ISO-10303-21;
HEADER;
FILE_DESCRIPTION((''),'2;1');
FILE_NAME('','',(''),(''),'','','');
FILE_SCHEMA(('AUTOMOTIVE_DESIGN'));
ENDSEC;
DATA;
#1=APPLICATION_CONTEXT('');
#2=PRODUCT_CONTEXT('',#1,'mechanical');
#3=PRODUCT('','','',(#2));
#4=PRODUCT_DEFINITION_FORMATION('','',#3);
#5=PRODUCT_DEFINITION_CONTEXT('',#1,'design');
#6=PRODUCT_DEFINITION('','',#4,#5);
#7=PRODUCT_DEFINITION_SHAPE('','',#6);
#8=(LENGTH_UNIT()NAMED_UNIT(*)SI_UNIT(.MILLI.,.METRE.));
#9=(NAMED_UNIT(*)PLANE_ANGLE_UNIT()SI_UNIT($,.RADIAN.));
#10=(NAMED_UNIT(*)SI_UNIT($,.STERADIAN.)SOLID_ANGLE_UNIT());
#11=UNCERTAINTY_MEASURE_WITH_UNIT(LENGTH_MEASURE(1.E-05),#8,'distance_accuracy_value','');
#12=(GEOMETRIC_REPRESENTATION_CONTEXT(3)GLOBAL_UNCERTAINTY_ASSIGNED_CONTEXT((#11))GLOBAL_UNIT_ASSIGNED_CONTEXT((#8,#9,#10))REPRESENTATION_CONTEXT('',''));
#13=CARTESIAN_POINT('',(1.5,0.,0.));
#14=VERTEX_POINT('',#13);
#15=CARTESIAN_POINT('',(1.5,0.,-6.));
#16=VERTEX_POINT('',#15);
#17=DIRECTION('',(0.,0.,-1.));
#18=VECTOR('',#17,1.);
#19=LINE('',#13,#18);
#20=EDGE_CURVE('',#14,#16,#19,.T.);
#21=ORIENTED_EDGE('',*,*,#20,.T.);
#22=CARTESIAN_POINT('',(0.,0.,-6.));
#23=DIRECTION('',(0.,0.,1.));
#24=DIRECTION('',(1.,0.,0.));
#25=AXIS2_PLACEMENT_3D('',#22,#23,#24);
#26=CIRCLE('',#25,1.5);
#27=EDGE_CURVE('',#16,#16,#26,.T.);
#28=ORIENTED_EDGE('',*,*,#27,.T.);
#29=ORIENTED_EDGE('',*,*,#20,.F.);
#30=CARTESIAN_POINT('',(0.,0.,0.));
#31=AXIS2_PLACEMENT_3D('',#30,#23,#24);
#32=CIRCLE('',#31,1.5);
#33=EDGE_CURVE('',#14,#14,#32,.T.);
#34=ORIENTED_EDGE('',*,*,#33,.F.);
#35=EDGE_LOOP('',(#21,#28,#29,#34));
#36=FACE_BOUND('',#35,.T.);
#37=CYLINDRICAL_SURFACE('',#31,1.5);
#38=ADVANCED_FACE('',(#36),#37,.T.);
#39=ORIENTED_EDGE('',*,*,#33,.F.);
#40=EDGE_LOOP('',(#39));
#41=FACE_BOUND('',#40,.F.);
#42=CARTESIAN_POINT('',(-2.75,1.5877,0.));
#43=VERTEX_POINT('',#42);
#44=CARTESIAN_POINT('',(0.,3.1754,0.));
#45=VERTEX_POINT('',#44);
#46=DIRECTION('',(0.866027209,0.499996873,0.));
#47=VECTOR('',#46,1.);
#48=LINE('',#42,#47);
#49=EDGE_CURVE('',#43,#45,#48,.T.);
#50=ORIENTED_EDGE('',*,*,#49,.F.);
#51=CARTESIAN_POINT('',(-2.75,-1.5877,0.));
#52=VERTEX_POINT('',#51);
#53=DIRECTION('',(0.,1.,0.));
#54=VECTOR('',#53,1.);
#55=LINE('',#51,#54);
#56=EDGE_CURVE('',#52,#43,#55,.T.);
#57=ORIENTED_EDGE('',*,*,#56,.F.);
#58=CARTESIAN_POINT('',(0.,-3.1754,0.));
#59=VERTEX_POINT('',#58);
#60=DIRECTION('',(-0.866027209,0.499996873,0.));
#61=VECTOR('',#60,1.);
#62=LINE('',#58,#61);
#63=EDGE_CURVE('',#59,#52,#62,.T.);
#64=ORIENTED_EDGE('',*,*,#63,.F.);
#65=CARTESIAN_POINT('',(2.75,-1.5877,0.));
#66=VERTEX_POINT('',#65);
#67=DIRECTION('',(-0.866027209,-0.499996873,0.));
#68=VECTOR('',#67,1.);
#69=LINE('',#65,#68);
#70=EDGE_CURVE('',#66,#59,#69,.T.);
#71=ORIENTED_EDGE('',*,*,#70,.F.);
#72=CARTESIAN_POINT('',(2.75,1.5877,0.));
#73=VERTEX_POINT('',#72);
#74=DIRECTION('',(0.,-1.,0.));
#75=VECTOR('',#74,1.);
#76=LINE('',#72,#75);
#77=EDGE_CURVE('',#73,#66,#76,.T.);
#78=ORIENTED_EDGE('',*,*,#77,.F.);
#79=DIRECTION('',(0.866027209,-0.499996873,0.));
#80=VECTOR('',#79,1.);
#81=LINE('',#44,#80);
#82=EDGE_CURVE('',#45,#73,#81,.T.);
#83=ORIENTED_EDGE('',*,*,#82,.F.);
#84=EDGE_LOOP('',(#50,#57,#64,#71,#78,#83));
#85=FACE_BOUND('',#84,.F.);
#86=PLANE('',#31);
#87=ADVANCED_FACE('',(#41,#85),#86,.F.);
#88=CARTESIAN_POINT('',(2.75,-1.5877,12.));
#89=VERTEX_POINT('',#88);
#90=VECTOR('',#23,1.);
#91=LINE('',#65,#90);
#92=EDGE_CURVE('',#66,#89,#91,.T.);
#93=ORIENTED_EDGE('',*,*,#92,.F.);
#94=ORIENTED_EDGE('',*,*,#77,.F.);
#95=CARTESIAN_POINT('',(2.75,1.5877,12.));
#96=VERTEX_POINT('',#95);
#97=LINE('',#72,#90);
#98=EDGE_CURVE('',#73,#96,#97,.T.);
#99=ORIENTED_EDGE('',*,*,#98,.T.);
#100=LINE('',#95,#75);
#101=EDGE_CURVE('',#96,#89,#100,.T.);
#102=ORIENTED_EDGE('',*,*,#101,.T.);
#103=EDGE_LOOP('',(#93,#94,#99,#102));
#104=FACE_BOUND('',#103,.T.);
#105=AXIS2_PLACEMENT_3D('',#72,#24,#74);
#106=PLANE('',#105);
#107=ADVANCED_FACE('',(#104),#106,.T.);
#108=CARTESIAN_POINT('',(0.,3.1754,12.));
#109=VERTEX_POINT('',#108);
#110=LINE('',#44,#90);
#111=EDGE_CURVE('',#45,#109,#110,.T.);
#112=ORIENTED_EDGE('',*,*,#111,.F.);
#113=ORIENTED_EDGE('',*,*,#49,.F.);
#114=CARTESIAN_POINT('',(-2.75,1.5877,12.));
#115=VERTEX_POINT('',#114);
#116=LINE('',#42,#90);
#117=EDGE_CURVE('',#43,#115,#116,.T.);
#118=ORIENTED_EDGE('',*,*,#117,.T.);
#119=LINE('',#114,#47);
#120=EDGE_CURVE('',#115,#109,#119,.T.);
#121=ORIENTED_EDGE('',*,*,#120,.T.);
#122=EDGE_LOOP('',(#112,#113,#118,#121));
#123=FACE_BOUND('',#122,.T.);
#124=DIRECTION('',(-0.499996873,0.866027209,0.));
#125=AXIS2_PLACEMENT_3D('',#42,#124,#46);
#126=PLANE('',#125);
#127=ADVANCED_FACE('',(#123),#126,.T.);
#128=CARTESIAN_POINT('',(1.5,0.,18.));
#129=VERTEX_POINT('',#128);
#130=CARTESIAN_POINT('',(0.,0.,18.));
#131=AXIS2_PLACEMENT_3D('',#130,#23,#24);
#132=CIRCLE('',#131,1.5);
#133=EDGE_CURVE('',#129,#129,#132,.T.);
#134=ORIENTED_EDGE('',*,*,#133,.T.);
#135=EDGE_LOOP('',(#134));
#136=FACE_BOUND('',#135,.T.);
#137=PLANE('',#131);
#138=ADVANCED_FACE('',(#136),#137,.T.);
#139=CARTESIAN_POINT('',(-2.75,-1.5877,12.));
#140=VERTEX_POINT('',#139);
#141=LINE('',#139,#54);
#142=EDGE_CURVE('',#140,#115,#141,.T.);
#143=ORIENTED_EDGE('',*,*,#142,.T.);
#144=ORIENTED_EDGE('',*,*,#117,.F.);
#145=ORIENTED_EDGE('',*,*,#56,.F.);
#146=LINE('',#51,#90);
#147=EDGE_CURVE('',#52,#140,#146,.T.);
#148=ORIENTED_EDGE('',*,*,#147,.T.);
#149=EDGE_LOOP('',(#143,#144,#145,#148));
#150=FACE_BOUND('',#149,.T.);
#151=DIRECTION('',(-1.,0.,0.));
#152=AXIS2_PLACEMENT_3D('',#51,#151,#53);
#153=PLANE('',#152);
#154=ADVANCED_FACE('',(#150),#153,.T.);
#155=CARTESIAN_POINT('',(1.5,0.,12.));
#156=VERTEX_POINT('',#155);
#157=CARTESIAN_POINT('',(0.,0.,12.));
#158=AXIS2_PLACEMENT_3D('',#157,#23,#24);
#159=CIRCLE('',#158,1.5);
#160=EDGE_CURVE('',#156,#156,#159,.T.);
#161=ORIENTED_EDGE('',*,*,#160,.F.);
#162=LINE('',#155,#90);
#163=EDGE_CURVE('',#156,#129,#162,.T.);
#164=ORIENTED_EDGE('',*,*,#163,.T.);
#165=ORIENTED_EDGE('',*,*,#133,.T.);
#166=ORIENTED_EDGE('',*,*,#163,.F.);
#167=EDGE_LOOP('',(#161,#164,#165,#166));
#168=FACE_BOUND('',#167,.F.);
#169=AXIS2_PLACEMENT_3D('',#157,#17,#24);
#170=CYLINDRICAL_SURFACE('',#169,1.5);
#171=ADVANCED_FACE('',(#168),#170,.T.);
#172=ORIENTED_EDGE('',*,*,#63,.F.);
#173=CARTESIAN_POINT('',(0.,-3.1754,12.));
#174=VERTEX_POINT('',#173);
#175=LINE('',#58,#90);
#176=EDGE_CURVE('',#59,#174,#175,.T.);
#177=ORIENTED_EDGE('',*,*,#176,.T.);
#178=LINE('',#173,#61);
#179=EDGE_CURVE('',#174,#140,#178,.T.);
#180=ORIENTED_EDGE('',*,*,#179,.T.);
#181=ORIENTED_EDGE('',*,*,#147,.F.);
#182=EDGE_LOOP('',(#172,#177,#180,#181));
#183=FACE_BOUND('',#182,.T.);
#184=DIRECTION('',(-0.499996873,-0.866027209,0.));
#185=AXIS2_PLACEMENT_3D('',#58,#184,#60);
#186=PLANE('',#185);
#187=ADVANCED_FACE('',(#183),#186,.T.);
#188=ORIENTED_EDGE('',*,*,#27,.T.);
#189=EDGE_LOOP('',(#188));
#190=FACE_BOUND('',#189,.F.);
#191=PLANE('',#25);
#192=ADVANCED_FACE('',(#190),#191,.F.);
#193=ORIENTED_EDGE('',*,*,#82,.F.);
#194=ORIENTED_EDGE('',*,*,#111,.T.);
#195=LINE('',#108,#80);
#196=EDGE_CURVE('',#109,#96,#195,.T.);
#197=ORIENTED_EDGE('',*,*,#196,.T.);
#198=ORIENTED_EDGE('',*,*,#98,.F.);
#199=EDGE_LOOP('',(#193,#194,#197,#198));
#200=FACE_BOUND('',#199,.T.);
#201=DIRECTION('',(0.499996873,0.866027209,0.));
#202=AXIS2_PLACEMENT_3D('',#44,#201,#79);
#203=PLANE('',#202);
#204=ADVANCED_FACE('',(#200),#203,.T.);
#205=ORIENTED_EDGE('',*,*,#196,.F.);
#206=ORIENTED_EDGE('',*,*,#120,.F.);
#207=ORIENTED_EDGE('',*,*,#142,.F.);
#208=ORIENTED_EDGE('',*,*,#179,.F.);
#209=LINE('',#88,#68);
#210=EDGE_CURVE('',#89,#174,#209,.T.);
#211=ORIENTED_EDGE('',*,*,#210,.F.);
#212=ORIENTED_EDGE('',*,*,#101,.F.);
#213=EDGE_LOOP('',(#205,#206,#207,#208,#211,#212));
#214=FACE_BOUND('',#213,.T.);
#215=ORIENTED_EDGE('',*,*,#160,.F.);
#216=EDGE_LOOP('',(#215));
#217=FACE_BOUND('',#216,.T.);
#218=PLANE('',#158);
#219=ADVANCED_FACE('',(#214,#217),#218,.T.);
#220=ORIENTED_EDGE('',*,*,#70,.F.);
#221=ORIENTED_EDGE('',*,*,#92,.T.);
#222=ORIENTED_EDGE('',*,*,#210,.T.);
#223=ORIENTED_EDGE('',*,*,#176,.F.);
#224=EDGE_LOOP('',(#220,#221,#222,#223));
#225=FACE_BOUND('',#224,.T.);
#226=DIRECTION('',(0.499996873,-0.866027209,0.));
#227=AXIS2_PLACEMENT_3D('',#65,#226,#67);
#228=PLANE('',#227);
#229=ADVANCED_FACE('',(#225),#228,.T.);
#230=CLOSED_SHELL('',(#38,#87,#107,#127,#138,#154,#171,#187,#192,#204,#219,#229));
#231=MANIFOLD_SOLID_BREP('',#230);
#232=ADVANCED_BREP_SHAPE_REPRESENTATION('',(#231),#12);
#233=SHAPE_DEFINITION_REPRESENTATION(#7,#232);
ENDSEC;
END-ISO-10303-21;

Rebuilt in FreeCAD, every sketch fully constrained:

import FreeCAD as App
import Part
import Sketcher
Q = App.Units.Quantity


def add_polygon(sketch, points):
    """Adds a closed chain of lines whose ends are joined by coincident constraints."""
    first, n = sketch.GeometryCount, len(points)
    for a, b in zip(points, points[1:] + points[:1]):
        sketch.addGeometry(Part.LineSegment(App.Vector(*a, 0), App.Vector(*b, 0)), False)
    for i in range(n):
        sketch.addConstraint(Sketcher.Constraint("Coincident", first + i, 2, first + (i + 1) % n, 1))

doc = App.newDocument("Part")
body = doc.addObject("PartDesign::Body", "Body")

sketch1 = body.newObject("Sketcher::SketchObject", "Sketch")
sketch1.AttachmentSupport = (doc.getObject("XY_Plane"), [""])
sketch1.MapMode = "FlatFace"
add_polygon(sketch1, [(0, 3.2), (-2.8, 1.6), (-2.8, -1.6), (0, -3.2), (2.8, -1.6), (2.8, 1.6)])
sketch1.addConstraint([
    Sketcher.Constraint("Vertical", 1),
    Sketcher.Constraint("Vertical", 4),
    Sketcher.Constraint("Symmetric", 0, 2, 3, 2, -1, 1),
    Sketcher.Constraint("Symmetric", 2, 2, 5, 2, -1, 1),
    Sketcher.Constraint("PointOnObject", 2, 2, -2),
    Sketcher.Constraint("Parallel", 2, 5),
    Sketcher.Constraint("Horizontal", 1, 2, 3, 2),
    Sketcher.Constraint("DistanceX", 1, 2, 3, 2, Q("5.5 mm")),
    Sketcher.Constraint("Angle", 0, Q("-150.0002 deg")),
    Sketcher.Constraint("DistanceY", 1, 2, 1, 1, Q("3.1754 mm")),
])
pad1 = body.newObject("PartDesign::Pad", "Pad")
pad1.Profile = sketch1
pad1.Length = 12

sketch2 = body.newObject("Sketcher::SketchObject", "Sketch001")
sketch2.AttachmentSupport = (doc.getObject("XY_Plane"), [""])
sketch2.MapMode = "FlatFace"
sketch2.AttachmentOffset = App.Placement(App.Vector(0, 0, 12), App.Rotation())
sketch2.addGeometry(Part.Circle(App.Vector(0, 0, 0), App.Vector(0, 0, 1), 1.5), False)
sketch2.addConstraint([
    Sketcher.Constraint("Coincident", 0, 3, -1, 1),
    Sketcher.Constraint("Diameter", 0, Q("3 mm")),
])
pad2 = body.newObject("PartDesign::Pad", "Pad001")
pad2.Profile = sketch2
pad2.Length = 6

sketch3 = body.newObject("Sketcher::SketchObject", "Sketch002")
sketch3.AttachmentSupport = (doc.getObject("XY_Plane"), [""])
sketch3.MapMode = "FlatFace"
sketch3.addGeometry(Part.Circle(App.Vector(0, 0, 0), App.Vector(0, 0, 1), 1.5), False)
sketch3.addConstraint([
    Sketcher.Constraint("Coincident", 0, 3, -1, 1),
    Sketcher.Constraint("Diameter", 0, Q("3 mm")),
])
pad3 = body.newObject("PartDesign::Pad", "Pad002")
pad3.Profile = sketch3
pad3.Length = 6
pad3.Reversed = True

doc.recompute()
